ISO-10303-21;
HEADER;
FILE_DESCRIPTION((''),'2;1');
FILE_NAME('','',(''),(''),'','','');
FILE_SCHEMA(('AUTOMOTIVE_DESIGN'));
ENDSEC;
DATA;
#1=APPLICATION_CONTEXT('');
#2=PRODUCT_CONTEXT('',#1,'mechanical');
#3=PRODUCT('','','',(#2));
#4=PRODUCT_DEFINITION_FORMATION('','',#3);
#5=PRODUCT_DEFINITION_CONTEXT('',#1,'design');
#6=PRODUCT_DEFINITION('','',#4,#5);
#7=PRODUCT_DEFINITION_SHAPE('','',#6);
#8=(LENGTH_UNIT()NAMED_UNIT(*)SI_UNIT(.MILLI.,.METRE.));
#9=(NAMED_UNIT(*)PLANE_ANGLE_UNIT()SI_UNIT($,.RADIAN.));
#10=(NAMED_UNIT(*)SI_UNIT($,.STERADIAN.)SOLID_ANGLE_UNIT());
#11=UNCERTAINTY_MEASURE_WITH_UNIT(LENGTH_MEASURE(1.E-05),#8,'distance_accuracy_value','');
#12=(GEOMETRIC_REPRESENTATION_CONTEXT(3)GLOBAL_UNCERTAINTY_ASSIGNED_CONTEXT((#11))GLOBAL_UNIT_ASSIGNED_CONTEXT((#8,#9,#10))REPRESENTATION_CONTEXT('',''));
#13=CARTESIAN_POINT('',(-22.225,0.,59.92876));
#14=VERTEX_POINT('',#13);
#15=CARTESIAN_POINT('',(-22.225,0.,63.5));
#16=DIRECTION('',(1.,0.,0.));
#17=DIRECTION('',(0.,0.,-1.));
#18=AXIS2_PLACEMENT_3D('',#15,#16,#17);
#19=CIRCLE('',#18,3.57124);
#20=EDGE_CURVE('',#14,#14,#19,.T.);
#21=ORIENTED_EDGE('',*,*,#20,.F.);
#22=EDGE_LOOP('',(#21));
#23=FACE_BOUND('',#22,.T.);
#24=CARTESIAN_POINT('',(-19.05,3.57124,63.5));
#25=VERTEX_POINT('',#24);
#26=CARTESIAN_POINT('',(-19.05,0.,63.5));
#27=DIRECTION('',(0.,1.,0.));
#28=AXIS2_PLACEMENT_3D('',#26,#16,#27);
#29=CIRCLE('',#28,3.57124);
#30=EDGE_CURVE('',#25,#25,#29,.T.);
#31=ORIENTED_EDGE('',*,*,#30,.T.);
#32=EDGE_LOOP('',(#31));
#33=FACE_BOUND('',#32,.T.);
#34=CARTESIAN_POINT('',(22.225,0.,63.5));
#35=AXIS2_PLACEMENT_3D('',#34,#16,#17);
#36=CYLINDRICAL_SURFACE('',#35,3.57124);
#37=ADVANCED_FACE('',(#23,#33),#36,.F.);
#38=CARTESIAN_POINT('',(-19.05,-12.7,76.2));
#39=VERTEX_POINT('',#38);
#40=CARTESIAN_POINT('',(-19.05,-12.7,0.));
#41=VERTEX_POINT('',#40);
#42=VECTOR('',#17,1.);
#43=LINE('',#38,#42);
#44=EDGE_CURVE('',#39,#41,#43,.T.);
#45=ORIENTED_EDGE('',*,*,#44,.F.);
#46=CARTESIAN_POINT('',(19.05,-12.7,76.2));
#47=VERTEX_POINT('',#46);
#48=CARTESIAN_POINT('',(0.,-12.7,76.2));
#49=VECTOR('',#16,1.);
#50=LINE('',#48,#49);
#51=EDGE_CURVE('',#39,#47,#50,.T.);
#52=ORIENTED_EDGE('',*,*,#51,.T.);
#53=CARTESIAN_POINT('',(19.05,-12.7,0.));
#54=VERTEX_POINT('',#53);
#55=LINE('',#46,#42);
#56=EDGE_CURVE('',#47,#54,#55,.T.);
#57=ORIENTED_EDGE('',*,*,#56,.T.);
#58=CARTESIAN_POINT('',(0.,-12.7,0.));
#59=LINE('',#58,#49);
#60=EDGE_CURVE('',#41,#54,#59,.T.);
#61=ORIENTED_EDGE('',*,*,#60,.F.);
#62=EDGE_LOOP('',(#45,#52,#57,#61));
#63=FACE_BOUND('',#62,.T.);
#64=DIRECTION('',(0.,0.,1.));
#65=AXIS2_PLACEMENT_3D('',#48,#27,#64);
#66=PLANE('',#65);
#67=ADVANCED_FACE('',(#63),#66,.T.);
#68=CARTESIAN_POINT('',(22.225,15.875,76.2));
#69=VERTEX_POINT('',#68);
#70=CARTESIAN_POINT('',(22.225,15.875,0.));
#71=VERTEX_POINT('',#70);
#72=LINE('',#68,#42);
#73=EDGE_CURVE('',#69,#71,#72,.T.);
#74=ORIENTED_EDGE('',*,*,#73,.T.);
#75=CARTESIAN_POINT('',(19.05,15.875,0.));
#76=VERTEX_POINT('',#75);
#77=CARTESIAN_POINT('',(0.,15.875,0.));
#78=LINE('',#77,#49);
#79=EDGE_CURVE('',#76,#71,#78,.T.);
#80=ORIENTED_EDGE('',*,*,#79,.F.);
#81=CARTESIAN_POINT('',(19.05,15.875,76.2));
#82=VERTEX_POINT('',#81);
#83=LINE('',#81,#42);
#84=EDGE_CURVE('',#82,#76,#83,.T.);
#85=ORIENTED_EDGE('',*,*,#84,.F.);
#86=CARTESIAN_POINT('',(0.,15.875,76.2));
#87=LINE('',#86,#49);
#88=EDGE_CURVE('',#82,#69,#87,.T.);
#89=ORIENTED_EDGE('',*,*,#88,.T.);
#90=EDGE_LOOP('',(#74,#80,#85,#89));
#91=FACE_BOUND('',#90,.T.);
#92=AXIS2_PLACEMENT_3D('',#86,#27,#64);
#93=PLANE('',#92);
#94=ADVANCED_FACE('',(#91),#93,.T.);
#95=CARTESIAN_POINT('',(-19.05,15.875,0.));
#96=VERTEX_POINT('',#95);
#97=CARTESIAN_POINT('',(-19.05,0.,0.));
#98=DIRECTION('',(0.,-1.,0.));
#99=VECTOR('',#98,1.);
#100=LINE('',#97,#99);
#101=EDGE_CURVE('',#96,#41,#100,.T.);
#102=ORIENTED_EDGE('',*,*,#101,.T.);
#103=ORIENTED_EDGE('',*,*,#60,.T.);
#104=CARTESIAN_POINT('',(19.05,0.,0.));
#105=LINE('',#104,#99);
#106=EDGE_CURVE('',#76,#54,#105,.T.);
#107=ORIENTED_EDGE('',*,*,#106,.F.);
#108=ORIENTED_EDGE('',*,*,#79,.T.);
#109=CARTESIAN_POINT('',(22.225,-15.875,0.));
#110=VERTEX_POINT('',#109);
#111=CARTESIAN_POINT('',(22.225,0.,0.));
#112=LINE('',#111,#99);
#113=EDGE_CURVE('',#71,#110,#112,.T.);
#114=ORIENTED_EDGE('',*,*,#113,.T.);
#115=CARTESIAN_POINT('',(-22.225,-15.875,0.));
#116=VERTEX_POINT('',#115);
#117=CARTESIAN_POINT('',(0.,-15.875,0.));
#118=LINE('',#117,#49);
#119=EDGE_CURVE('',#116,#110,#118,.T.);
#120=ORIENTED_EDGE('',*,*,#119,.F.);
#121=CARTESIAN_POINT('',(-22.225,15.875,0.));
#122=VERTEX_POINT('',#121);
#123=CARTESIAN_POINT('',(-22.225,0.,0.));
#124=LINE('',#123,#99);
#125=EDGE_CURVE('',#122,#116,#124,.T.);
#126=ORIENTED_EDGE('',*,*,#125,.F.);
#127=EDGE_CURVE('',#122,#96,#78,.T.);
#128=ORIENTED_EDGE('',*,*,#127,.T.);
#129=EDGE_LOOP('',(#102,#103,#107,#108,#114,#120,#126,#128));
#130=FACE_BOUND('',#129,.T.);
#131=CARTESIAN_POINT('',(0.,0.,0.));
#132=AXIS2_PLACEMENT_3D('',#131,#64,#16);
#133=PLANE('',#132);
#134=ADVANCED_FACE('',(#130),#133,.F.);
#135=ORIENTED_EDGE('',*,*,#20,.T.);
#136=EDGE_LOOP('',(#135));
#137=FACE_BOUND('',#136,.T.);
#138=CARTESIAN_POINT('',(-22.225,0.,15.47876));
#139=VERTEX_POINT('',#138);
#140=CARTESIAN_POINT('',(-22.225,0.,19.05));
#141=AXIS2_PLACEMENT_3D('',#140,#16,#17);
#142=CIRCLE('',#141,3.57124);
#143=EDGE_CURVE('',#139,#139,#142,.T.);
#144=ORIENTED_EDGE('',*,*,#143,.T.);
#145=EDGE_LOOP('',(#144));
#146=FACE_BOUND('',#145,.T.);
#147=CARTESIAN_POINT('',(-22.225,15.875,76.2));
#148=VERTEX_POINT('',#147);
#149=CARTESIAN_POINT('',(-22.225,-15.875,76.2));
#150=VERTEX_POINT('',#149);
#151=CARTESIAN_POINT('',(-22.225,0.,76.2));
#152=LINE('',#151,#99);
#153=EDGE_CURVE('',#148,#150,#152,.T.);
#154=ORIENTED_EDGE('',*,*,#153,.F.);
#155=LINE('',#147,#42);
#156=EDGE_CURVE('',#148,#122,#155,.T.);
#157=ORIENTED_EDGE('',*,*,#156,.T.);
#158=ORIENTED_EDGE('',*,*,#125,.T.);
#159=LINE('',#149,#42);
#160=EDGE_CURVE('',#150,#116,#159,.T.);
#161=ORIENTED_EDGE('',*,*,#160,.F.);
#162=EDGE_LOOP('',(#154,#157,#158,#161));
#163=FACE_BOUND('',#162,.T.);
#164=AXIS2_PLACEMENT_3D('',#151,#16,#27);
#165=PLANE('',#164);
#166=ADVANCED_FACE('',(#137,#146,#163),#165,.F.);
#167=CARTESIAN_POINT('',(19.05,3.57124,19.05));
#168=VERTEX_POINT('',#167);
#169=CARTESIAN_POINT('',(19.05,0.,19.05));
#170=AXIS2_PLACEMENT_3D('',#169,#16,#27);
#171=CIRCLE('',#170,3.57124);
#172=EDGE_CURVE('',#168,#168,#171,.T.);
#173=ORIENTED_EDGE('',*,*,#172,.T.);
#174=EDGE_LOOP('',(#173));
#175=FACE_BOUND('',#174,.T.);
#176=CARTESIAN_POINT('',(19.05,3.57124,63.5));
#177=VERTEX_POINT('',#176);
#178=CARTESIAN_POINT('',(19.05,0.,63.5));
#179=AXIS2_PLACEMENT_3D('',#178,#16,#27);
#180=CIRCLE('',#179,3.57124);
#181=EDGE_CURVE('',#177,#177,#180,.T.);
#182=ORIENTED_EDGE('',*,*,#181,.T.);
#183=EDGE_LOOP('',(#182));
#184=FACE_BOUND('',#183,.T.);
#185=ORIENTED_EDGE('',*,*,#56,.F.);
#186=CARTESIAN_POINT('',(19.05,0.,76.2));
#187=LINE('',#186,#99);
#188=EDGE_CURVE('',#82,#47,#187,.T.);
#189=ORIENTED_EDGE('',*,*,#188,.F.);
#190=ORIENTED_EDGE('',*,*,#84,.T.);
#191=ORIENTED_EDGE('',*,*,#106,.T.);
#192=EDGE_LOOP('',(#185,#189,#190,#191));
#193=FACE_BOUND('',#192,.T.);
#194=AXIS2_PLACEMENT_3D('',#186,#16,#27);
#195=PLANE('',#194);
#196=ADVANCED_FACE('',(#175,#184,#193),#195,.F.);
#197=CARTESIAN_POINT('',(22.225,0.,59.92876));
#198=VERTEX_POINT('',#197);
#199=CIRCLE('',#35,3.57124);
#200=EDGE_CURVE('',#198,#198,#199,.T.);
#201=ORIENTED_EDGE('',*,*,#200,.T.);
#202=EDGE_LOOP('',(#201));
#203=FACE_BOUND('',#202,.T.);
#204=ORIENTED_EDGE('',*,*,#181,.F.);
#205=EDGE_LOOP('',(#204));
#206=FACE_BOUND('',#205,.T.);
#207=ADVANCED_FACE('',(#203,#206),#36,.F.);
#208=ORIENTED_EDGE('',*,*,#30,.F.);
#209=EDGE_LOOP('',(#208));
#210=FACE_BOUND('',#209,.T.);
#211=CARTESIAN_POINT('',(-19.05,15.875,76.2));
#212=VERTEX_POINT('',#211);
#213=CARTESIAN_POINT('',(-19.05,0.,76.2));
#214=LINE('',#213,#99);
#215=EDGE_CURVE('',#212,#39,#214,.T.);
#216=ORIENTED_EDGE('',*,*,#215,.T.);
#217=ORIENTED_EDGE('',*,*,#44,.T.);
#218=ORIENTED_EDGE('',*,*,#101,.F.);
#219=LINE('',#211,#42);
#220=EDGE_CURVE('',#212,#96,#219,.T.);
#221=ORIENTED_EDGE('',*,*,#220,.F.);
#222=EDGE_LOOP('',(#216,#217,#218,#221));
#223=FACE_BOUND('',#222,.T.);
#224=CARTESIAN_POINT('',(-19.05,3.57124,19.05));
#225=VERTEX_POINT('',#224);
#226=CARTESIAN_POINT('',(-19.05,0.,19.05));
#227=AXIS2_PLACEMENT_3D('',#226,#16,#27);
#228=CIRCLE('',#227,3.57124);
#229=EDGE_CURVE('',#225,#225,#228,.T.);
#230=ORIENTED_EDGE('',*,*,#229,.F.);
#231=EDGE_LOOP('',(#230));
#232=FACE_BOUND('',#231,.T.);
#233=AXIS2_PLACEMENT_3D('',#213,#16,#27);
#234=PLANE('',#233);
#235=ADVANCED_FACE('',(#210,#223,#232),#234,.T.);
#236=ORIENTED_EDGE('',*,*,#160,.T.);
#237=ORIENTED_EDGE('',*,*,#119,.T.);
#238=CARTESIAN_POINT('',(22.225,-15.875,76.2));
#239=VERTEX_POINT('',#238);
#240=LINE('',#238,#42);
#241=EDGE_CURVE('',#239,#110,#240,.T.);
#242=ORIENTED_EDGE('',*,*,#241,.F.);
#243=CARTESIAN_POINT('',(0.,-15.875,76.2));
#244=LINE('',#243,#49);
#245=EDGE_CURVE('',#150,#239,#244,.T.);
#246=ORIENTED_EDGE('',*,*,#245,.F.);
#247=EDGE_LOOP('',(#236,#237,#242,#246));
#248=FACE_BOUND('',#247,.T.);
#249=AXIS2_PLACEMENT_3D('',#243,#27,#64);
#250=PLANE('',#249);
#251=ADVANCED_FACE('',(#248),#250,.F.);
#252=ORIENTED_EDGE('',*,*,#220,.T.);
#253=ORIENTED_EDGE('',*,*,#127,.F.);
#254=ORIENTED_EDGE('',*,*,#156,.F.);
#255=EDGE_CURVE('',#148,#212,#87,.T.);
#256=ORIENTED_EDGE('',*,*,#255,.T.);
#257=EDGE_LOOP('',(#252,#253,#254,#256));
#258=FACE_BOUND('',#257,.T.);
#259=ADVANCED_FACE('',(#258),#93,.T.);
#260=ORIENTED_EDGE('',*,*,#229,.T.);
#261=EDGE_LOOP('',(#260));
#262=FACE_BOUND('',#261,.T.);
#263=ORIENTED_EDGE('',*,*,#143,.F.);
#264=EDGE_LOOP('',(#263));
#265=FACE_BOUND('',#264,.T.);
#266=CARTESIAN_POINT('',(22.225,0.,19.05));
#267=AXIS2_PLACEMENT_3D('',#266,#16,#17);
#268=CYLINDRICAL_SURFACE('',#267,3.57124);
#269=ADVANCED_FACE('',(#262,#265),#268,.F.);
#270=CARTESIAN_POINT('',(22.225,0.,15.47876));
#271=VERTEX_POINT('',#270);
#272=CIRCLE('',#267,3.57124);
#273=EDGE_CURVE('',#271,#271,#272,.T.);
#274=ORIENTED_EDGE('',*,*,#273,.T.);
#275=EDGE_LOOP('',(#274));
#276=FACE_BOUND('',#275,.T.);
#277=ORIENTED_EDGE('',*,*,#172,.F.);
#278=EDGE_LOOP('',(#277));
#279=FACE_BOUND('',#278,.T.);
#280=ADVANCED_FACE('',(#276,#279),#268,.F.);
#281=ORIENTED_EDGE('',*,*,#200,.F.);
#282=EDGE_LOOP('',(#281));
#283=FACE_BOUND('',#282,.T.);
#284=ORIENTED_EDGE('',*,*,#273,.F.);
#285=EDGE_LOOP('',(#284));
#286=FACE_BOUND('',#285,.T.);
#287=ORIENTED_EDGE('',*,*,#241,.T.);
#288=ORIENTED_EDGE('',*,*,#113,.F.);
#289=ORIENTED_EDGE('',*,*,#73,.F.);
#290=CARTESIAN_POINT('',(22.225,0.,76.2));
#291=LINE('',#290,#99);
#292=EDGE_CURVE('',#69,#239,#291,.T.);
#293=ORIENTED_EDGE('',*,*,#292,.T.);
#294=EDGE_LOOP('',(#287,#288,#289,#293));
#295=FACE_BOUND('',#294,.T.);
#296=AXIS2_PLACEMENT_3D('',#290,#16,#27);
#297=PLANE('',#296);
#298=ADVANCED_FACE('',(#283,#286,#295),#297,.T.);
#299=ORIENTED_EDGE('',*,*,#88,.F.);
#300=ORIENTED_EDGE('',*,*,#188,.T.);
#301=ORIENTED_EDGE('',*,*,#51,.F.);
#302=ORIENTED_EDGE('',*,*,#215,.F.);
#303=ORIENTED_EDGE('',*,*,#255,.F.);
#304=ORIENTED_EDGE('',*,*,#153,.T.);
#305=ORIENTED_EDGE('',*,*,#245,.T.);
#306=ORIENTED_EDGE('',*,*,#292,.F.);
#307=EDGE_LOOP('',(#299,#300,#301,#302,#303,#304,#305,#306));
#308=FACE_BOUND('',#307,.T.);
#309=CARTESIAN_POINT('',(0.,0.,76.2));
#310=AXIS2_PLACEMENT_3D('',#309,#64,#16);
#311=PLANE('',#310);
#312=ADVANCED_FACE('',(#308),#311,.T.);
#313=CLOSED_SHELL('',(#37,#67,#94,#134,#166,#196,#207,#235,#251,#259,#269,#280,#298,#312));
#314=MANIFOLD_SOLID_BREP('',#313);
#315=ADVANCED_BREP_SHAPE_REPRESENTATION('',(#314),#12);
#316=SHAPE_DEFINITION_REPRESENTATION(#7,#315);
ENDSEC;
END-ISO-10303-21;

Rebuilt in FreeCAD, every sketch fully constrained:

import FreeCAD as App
import Part
import Sketcher
from FreeCAD import Vector
Q = App.Units.Quantity

doc = App.newDocument("Part")
params = doc.addObject("Spreadsheet::Sheet", "Params")
for row, (alias, value) in enumerate([
    ("sketch1_width", "1.5 in"),
    ("sketch1_width2", "1.75 in"),
    ("sketch1_height", "1.25 in"),
    ("pad1_length", "3 in"),
    ("hole_diameter", "0.2812 in"),
], start=1):
    params.set(f"A{row}", alias)
    params.set(f"B{row}", "=" + value)
    params.setAlias(f"B{row}", alias)

body = doc.addObject("PartDesign::Body", "Body")

sketch1 = doc.addObject("Sketcher::SketchObject", "Sketch")
body.addObject(sketch1)
sketch1.AttachmentSupport = (doc.XY_Plane, [""])
sketch1.MapMode = "FlatFace"
sketch1.addGeometry([
    Part.LineSegment(Vector(-19.1, 15.9, 0), Vector(-22.2, 15.9, 0)),
    Part.LineSegment(Vector(-22.2, 15.9, 0), Vector(-22.2, -15.9, 0)),
    Part.LineSegment(Vector(-22.2, -15.9, 0), Vector(22.2, -15.9, 0)),
    Part.LineSegment(Vector(22.2, -15.9, 0), Vector(22.2, 15.9, 0)),
    Part.LineSegment(Vector(22.2, 15.9, 0), Vector(19.1, 15.9, 0)),
    Part.LineSegment(Vector(19.1, 15.9, 0), Vector(19.1, -12.7, 0)),
    Part.LineSegment(Vector(19.1, -12.7, 0), Vector(-19.1, -12.7, 0)),
    Part.LineSegment(Vector(-19.1, -12.7, 0), Vector(-19.1, 15.9, 0)),
], False)
sketch1.addConstraint([
    Sketcher.Constraint("Coincident", 0, 2, 1, 1),
    Sketcher.Constraint("Coincident", 1, 2, 2, 1),
    Sketcher.Constraint("Coincident", 2, 2, 3, 1),
    Sketcher.Constraint("Coincident", 3, 2, 4, 1),
    Sketcher.Constraint("Coincident", 4, 2, 5, 1),
    Sketcher.Constraint("Coincident", 5, 2, 6, 1),
    Sketcher.Constraint("Coincident", 6, 2, 7, 1),
    Sketcher.Constraint("Coincident", 7, 2, 0, 1),
    Sketcher.Constraint("Horizontal", 0),
    Sketcher.Constraint("Vertical", 1),
    Sketcher.Constraint("Horizontal", 2),
    Sketcher.Constraint("Vertical", 3),
    Sketcher.Constraint("Horizontal", 4),
    Sketcher.Constraint("Vertical", 5),
    Sketcher.Constraint("Horizontal", 6),
    Sketcher.Constraint("Vertical", 7),
    Sketcher.Constraint("Symmetric", 0, 2, 2, 2, -1, 1),
    Sketcher.Constraint("Symmetric", 4, 2, 7, 2, -2),
    Sketcher.Constraint("DistanceX", 6, 2, 6, 1, Q("1.5 in")),
    Sketcher.Constraint("DistanceX", 2, 1, 2, 2, Q("1.75 in")),
    Sketcher.Constraint("DistanceY", 1, 2, 1, 1, Q("1.25 in")),
    Sketcher.Constraint("DistanceY", 5, 2, -1, 1, Q("0.5 in")),
])
sketch1.setExpression("Constraints[18]", "Params.sketch1_width")
sketch1.setExpression("Constraints[19]", "Params.sketch1_width2")
sketch1.setExpression("Constraints[20]", "Params.sketch1_height")
pad1 = doc.addObject("PartDesign::Pad", "Pad")
body.addObject(pad1)
pad1.Profile = sketch1
pad1.setExpression("Length", "Params.pad1_length")

sketch2 = doc.addObject("Sketcher::SketchObject", "Sketch001")
body.addObject(sketch2)
sketch2.AttachmentSupport = (doc.YZ_Plane, [""])
sketch2.MapMode = "FlatFace"
sketch2.AttachmentOffset = App.Placement(Vector(0, 0, 0.875 * 25.4), App.Rotation())
sketch2.addGeometry([
    Part.Circle(Vector(0, 19.1, 0), Vector(0, 0, 1), 3.6),
    Part.Circle(Vector(0, 63.5, 0), Vector(0, 0, 1), 3.6),
], False)
sketch2.addConstraint([
    Sketcher.Constraint("Equal", 0, 1),
    Sketcher.Constraint("PointOnObject", 0, 3, -2),
    Sketcher.Constraint("PointOnObject", 1, 3, -2),
    Sketcher.Constraint("Diameter", 0, Q("0.2812 in")),
    Sketcher.Constraint("DistanceY", -1, 1, 1, 3, Q("2.5 in")),
    Sketcher.Constraint("DistanceY", -1, 1, 0, 3, Q("0.75 in")),
])
doc.recompute()
hole = doc.addObject("PartDesign::Hole", "Hole")
body.addObject(hole)
hole.Profile = sketch2
hole.ThreadType = "None"
hole.setExpression("Diameter", "Params.hole_diameter")
hole.DepthType = "ThroughAll"

doc.recompute()
